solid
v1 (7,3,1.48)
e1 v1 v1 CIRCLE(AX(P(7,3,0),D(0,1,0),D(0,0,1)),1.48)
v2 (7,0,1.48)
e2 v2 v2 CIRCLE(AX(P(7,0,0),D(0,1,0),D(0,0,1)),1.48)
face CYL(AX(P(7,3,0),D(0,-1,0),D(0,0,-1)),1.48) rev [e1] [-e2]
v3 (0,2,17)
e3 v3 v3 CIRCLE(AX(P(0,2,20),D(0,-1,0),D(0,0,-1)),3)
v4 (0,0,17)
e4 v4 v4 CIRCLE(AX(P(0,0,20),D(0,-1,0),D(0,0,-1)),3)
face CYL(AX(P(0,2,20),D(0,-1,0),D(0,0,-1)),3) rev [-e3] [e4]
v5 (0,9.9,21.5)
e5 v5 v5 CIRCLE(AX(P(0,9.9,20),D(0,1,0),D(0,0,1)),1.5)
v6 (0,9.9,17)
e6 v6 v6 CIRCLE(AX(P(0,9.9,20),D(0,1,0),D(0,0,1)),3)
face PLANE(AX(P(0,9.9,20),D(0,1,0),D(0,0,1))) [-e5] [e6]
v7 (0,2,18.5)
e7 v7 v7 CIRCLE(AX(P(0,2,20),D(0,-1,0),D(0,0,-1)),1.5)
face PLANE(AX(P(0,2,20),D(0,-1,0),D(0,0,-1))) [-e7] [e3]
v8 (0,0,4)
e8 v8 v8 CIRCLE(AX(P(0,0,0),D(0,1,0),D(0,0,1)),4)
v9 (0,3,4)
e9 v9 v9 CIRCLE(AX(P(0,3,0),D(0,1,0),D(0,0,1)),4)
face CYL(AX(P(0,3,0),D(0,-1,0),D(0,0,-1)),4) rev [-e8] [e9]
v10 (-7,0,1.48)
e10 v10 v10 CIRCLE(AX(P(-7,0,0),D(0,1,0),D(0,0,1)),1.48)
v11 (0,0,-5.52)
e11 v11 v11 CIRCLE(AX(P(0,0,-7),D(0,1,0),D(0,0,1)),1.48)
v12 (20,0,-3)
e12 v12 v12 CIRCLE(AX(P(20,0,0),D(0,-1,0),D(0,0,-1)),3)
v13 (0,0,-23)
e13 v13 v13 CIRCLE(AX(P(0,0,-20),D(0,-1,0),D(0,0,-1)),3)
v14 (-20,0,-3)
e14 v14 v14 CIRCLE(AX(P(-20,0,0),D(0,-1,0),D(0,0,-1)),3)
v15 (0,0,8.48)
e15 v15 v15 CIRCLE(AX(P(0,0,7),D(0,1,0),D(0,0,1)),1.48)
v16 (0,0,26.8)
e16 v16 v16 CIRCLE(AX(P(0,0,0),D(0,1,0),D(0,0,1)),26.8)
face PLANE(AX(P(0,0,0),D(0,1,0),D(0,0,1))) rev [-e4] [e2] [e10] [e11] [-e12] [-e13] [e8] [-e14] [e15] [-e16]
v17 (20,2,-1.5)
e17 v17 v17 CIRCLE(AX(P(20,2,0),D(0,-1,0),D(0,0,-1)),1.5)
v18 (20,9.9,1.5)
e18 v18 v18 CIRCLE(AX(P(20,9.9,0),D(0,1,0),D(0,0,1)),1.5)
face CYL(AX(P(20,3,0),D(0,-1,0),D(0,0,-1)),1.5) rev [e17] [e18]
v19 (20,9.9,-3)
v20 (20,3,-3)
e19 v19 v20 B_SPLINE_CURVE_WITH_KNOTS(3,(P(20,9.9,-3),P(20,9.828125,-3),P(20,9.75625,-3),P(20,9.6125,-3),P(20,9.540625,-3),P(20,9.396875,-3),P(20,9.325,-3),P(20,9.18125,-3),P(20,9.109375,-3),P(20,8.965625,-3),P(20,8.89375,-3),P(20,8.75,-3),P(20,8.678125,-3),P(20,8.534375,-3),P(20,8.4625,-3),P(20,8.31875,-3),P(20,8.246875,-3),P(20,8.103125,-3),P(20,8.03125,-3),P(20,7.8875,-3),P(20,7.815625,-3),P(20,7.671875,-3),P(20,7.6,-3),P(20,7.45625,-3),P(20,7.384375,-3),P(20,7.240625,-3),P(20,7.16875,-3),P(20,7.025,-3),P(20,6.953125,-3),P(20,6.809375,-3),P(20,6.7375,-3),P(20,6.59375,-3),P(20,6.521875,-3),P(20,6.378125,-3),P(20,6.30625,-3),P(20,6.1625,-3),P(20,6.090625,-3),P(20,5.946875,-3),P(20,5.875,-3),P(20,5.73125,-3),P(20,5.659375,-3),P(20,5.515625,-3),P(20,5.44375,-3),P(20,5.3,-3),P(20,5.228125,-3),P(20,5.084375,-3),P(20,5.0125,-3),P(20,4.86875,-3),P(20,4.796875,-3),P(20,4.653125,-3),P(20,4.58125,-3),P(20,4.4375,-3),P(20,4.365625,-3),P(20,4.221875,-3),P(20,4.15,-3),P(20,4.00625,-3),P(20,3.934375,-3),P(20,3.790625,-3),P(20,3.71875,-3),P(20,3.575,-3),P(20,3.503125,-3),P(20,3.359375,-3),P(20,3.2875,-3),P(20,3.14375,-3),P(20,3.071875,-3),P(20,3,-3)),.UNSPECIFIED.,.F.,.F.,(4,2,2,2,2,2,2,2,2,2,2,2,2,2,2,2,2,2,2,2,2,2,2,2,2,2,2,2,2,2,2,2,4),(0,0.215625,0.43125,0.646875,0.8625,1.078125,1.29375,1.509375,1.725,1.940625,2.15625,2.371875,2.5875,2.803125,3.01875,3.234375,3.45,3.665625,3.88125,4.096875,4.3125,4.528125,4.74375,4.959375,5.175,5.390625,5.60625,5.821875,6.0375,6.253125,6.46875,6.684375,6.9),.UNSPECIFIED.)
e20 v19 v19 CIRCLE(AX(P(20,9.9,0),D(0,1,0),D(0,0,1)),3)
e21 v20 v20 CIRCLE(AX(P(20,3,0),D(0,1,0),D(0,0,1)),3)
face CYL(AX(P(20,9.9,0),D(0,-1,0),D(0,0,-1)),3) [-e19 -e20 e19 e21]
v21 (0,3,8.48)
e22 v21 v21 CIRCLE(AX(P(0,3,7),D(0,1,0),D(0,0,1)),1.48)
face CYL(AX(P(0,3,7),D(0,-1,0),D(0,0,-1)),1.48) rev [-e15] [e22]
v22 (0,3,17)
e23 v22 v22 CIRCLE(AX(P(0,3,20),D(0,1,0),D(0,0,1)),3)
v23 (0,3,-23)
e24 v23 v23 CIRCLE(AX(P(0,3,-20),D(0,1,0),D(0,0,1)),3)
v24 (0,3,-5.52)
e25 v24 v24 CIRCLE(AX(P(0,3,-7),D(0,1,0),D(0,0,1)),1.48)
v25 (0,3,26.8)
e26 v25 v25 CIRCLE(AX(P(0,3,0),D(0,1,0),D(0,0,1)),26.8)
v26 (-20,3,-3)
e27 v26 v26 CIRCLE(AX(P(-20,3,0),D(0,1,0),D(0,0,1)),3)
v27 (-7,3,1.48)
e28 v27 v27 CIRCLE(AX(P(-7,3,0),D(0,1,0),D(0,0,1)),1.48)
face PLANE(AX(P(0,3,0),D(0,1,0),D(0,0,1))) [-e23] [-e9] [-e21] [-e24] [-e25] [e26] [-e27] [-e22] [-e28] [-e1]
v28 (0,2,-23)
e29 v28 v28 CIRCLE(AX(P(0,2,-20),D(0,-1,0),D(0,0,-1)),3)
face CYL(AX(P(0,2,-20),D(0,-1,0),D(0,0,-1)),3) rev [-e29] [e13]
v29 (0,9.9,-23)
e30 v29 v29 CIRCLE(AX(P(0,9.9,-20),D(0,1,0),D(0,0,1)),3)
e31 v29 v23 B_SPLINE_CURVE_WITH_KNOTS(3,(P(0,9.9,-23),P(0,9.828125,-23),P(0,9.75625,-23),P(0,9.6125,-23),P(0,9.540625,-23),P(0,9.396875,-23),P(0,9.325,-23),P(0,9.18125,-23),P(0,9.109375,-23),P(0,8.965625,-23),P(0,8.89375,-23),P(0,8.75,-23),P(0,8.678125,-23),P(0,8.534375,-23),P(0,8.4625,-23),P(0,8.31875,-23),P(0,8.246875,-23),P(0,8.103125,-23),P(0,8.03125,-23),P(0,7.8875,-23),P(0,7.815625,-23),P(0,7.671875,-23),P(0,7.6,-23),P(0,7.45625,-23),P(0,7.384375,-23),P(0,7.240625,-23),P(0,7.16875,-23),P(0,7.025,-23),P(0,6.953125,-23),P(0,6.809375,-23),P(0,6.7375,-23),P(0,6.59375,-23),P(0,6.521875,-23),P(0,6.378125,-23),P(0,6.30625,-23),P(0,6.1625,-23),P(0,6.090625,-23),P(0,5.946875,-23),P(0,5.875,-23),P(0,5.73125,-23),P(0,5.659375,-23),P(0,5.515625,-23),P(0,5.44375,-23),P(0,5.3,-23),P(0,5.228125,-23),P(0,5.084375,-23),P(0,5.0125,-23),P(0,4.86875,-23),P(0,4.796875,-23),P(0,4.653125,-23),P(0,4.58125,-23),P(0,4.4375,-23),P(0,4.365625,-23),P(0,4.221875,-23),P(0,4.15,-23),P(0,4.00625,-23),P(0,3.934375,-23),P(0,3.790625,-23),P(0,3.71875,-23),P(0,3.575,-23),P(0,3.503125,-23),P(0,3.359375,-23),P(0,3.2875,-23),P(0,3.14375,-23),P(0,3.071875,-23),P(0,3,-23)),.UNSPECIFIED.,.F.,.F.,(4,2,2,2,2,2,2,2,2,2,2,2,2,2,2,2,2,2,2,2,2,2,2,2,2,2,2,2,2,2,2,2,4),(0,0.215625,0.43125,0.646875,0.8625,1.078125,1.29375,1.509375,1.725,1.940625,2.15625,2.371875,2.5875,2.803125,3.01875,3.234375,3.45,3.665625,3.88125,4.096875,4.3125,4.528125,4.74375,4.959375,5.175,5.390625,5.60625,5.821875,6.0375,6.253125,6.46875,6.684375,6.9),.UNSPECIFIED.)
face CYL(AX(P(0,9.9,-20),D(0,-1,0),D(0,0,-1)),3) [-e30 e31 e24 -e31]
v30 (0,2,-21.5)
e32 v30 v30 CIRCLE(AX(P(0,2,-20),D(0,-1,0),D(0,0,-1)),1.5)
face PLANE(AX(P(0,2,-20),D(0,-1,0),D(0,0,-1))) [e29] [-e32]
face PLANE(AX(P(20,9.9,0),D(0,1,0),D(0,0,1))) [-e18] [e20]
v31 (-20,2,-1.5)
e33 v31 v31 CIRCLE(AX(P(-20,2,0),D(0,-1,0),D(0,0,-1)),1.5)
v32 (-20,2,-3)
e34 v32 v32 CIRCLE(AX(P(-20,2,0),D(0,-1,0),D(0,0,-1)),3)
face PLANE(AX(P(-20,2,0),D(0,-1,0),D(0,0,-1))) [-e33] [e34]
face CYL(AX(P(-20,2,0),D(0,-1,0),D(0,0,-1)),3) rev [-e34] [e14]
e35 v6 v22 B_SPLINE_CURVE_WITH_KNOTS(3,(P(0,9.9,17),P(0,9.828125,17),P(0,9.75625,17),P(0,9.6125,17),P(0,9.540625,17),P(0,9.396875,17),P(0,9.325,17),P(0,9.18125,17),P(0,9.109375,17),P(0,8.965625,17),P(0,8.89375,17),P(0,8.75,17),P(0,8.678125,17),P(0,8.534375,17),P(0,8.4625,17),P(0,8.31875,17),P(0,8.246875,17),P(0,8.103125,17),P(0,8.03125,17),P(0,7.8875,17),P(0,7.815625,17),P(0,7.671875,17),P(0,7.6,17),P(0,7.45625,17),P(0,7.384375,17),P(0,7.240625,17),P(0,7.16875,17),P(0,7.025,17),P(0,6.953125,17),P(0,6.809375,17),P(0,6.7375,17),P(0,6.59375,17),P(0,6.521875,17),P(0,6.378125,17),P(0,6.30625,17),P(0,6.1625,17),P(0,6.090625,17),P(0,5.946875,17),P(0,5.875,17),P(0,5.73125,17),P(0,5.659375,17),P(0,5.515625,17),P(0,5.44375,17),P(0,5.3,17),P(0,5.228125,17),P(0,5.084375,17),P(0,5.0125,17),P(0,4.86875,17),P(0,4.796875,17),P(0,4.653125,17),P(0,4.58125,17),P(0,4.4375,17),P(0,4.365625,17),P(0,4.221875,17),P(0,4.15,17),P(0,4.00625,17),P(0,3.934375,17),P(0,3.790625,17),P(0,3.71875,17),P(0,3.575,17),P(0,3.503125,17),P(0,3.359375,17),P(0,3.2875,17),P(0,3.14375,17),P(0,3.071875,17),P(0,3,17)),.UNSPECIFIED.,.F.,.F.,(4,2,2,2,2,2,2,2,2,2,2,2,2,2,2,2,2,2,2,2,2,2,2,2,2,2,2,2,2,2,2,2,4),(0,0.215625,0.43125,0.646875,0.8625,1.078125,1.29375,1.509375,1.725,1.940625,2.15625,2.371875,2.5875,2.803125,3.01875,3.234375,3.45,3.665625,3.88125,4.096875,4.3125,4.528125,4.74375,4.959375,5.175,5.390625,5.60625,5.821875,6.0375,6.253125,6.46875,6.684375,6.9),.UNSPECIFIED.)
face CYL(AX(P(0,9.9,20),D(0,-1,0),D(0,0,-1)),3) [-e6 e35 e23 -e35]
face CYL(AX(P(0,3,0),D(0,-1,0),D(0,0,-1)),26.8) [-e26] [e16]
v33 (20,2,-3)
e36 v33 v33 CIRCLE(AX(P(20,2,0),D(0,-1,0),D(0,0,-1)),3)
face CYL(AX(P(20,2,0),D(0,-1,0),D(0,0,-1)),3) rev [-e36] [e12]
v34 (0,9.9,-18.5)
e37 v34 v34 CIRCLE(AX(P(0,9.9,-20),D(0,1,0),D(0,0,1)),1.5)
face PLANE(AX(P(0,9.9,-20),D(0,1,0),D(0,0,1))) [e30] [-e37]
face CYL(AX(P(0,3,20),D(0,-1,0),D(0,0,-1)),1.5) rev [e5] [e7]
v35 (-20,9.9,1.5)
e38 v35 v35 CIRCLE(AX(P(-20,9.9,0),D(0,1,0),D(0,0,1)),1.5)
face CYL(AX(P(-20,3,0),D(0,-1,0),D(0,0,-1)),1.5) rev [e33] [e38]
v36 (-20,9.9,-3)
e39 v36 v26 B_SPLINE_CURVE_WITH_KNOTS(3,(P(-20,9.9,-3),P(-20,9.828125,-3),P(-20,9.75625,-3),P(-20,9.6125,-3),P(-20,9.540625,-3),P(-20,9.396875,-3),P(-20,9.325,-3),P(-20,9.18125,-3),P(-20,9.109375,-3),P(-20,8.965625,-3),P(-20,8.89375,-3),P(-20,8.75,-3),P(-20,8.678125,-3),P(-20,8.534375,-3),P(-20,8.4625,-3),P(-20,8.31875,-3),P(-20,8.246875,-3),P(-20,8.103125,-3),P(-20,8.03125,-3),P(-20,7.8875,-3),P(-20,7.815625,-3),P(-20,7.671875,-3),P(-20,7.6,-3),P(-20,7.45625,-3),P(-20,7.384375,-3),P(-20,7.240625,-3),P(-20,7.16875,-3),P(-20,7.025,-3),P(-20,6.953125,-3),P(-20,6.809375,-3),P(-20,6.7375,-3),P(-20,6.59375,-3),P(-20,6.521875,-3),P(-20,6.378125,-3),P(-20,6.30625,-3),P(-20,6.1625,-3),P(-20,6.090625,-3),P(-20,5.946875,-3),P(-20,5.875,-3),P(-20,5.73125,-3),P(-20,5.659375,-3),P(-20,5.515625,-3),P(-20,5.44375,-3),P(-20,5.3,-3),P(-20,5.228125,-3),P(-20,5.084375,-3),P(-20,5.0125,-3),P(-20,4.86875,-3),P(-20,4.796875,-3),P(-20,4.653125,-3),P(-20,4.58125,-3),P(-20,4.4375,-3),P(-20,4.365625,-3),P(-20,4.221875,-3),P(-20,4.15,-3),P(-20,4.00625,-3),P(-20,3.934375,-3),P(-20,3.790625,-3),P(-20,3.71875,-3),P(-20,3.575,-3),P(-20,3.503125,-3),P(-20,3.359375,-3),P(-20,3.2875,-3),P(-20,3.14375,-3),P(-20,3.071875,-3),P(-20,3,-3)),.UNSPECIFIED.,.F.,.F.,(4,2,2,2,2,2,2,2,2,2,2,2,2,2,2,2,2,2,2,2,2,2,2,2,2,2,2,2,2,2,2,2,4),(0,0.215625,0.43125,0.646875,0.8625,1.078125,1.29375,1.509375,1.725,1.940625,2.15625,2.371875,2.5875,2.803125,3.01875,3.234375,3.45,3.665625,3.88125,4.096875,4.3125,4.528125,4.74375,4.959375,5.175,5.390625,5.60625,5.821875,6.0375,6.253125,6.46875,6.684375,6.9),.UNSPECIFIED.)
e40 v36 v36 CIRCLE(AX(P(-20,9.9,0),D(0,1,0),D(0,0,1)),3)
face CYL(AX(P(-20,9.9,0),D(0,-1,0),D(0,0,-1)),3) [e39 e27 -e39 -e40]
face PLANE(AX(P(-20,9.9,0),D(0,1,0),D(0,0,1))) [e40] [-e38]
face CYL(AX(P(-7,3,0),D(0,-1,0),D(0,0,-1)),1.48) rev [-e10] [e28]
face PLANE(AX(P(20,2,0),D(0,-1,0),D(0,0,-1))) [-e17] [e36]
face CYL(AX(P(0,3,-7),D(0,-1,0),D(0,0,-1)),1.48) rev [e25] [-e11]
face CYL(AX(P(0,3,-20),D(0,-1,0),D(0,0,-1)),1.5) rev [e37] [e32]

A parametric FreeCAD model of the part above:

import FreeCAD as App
import Part
import Sketcher
from FreeCAD import Vector

doc = App.newDocument("Part")
body = doc.addObject("PartDesign::Body", "Body")

# Sketch on XZ plane
sketch1 = body.newObject("Sketcher::SketchObject", "Sketch")
sketch1.AttachmentSupport = (doc.getObject("XZ_Plane"), [""])
sketch1.MapMode = "FlatFace"
sketch1.addGeometry([
    Part.Circle(Vector(0, 0, 0), Vector(0, 0, 1), 26.8),  # 0
    Part.Circle(Vector(0, -20, 0), Vector(0, 0, 1), 1.5),  # 1
    Part.Circle(Vector(-20, 0, 0), Vector(0, 0, 1), 1.5),  # 2
    Part.Circle(Vector(-7, 0, 0), Vector(0, 0, 1), 1.5),  # 3
    Part.Circle(Vector(0, -7, 0), Vector(0, 0, 1), 1.5),  # 4
    Part.Circle(Vector(20, 0, 0), Vector(0, 0, 1), 1.5),  # 5
    Part.Circle(Vector(0, 0, 0), Vector(0, 0, 1), 4),  # 6
    Part.Circle(Vector(0, 7, 0), Vector(0, 0, 1), 1.5),  # 7
    Part.Circle(Vector(7, 0, 0), Vector(0, 0, 1), 1.5),  # 8
    Part.Circle(Vector(0, 20, 0), Vector(0, 0, 1), 1.5),  # 9
], False)
sketch1.addConstraint([
    Sketcher.Constraint("Coincident", 0, 3, -1, 1),
    Sketcher.Constraint("Coincident", 6, 3, -1, 1),
    Sketcher.Constraint("Equal", 1, 2),
    Sketcher.Constraint("Equal", 3, 4),
    Sketcher.Constraint("Equal", 2, 5),
    Sketcher.Constraint("Equal", 4, 7),
    Sketcher.Constraint("Equal", 7, 8),
    Sketcher.Constraint("Equal", 5, 9),
    Sketcher.Constraint("Symmetric", 2, 3, 5, 3, -1, 1),
    Sketcher.Constraint("Symmetric", 4, 3, 7, 3, -1, 1),
    Sketcher.Constraint("Symmetric", 3, 3, 8, 3, -1, 1),
    Sketcher.Constraint("Symmetric", 1, 3, 9, 3, -1, 1),
    Sketcher.Constraint("PointOnObject", 1, 3, -2),
    Sketcher.Constraint("PointOnObject", 2, 3, -1),
    Sketcher.Constraint("PointOnObject", 3, 3, -1),
    Sketcher.Constraint("PointOnObject", 4, 3, -2),
    Sketcher.Constraint("Diameter", 1, 3.0),
    Sketcher.Constraint("Diameter", 6, 8.0),
    Sketcher.Constraint("Diameter", 0, 53.6),
    Sketcher.Constraint("Diameter", 3, 2.96),
    Sketcher.Constraint("DistanceY", 1, 3, -1, 1, 20.0),
    Sketcher.Constraint("DistanceX", 2, 3, -1, 1, 20.0),
    Sketcher.Constraint("DistanceX", 3, 3, -1, 1, 7.0),
    Sketcher.Constraint("DistanceY", 4, 3, -1, 1, 7.0),
])
pad1 = body.newObject("PartDesign::Pad", "Pad")
pad1.Profile = sketch1
pad1.Length = 3
pad1.Reversed = True

# Sketch on XZ plane
sketch2 = body.newObject("Sketcher::SketchObject", "Sketch001")
sketch2.AttachmentSupport = (doc.getObject("XZ_Plane"), [""])
sketch2.MapMode = "FlatFace"
sketch2.AttachmentOffset = App.Placement(Vector(0, 0, -3), App.Rotation())
sketch2.addGeometry([
    Part.Circle(Vector(0, -20, 0), Vector(0, 0, 1), 3),  # 0
    Part.Circle(Vector(0, -20, 0), Vector(0, 0, 1), 1.5),  # 1
    Part.Circle(Vector(-20, 0, 0), Vector(0, 0, 1), 3),  # 2
    Part.Circle(Vector(-20, 0, 0), Vector(0, 0, 1), 1.5),  # 3
    Part.Circle(Vector(20, 0, 0), Vector(0, 0, 1), 3),  # 4
    Part.Circle(Vector(20, 0, 0), Vector(0, 0, 1), 1.5),  # 5
    Part.Circle(Vector(0, 20, 0), Vector(0, 0, 1), 3),  # 6
    Part.Circle(Vector(0, 20, 0), Vector(0, 0, 1), 1.5),  # 7
], False)
sketch2.addConstraint([
    Sketcher.Constraint("Coincident", 1, 3, 0, 3),
    Sketcher.Constraint("Coincident", 3, 3, 2, 3),
    Sketcher.Constraint("Coincident", 5, 3, 4, 3),
    Sketcher.Constraint("Coincident", 7, 3, 6, 3),
    Sketcher.Constraint("Equal", 0, 2),
    Sketcher.Constraint("Equal", 1, 3),
    Sketcher.Constraint("Equal", 2, 4),
    Sketcher.Constraint("Equal", 3, 5),
    Sketcher.Constraint("Equal", 4, 6),
    Sketcher.Constraint("Equal", 5, 7),
    Sketcher.Constraint("Symmetric", 2, 3, 4, 3, -1, 1),
    Sketcher.Constraint("Symmetric", 0, 3, 6, 3, -1, 1),
    Sketcher.Constraint("PointOnObject", 0, 3, -2),
    Sketcher.Constraint("PointOnObject", 2, 3, -1),
    Sketcher.Constraint("Diameter", 0, 6.0),
    Sketcher.Constraint("Diameter", 1, 3.0),
    Sketcher.Constraint("DistanceY", 0, 3, -1, 1, 20.0),
    Sketcher.Constraint("DistanceX", 2, 3, -1, 1, 20.0),
])
pad2 = body.newObject("PartDesign::Pad", "Pad001")
pad2.Profile = sketch2
pad2.Length = 6.9
pad2.Reversed = True

# Sketch on XZ plane
sketch3 = body.newObject("Sketcher::SketchObject", "Sketch002")
sketch3.AttachmentSupport = (doc.getObject("XZ_Plane"), [""])
sketch3.MapMode = "FlatFace"
sketch3.addGeometry([
    Part.Circle(Vector(0, 20, 0), Vector(0, 0, 1), 3),
    Part.Circle(Vector(-20, 0, 0), Vector(0, 0, 1), 3),
    Part.Circle(Vector(0, -20, 0), Vector(0, 0, 1), 3),
    Part.Circle(Vector(20, 0, 0), Vector(0, 0, 1), 3),
], False)
sketch3.addConstraint([
    Sketcher.Constraint("Equal", 0, 1),
    Sketcher.Constraint("Equal", 1, 2),
    Sketcher.Constraint("Equal", 2, 3),
    Sketcher.Constraint("Symmetric", 0, 3, 2, 3, -1, 1),
    Sketcher.Constraint("Symmetric", 1, 3, 3, 3, -1, 1),
    Sketcher.Constraint("PointOnObject", 0, 3, -2),
    Sketcher.Constraint("PointOnObject", 1, 3, -1),
    Sketcher.Constraint("Diameter", 0, 6.0),
    Sketcher.Constraint("DistanceY", -1, 1, 0, 3, 20.0),
    Sketcher.Constraint("DistanceX", 1, 3, -1, 1, 20.0),
])
pocket1 = body.newObject("PartDesign::Pocket", "Pocket")
pocket1.Profile = sketch3
pocket1.Length = 2

doc.recompute()
